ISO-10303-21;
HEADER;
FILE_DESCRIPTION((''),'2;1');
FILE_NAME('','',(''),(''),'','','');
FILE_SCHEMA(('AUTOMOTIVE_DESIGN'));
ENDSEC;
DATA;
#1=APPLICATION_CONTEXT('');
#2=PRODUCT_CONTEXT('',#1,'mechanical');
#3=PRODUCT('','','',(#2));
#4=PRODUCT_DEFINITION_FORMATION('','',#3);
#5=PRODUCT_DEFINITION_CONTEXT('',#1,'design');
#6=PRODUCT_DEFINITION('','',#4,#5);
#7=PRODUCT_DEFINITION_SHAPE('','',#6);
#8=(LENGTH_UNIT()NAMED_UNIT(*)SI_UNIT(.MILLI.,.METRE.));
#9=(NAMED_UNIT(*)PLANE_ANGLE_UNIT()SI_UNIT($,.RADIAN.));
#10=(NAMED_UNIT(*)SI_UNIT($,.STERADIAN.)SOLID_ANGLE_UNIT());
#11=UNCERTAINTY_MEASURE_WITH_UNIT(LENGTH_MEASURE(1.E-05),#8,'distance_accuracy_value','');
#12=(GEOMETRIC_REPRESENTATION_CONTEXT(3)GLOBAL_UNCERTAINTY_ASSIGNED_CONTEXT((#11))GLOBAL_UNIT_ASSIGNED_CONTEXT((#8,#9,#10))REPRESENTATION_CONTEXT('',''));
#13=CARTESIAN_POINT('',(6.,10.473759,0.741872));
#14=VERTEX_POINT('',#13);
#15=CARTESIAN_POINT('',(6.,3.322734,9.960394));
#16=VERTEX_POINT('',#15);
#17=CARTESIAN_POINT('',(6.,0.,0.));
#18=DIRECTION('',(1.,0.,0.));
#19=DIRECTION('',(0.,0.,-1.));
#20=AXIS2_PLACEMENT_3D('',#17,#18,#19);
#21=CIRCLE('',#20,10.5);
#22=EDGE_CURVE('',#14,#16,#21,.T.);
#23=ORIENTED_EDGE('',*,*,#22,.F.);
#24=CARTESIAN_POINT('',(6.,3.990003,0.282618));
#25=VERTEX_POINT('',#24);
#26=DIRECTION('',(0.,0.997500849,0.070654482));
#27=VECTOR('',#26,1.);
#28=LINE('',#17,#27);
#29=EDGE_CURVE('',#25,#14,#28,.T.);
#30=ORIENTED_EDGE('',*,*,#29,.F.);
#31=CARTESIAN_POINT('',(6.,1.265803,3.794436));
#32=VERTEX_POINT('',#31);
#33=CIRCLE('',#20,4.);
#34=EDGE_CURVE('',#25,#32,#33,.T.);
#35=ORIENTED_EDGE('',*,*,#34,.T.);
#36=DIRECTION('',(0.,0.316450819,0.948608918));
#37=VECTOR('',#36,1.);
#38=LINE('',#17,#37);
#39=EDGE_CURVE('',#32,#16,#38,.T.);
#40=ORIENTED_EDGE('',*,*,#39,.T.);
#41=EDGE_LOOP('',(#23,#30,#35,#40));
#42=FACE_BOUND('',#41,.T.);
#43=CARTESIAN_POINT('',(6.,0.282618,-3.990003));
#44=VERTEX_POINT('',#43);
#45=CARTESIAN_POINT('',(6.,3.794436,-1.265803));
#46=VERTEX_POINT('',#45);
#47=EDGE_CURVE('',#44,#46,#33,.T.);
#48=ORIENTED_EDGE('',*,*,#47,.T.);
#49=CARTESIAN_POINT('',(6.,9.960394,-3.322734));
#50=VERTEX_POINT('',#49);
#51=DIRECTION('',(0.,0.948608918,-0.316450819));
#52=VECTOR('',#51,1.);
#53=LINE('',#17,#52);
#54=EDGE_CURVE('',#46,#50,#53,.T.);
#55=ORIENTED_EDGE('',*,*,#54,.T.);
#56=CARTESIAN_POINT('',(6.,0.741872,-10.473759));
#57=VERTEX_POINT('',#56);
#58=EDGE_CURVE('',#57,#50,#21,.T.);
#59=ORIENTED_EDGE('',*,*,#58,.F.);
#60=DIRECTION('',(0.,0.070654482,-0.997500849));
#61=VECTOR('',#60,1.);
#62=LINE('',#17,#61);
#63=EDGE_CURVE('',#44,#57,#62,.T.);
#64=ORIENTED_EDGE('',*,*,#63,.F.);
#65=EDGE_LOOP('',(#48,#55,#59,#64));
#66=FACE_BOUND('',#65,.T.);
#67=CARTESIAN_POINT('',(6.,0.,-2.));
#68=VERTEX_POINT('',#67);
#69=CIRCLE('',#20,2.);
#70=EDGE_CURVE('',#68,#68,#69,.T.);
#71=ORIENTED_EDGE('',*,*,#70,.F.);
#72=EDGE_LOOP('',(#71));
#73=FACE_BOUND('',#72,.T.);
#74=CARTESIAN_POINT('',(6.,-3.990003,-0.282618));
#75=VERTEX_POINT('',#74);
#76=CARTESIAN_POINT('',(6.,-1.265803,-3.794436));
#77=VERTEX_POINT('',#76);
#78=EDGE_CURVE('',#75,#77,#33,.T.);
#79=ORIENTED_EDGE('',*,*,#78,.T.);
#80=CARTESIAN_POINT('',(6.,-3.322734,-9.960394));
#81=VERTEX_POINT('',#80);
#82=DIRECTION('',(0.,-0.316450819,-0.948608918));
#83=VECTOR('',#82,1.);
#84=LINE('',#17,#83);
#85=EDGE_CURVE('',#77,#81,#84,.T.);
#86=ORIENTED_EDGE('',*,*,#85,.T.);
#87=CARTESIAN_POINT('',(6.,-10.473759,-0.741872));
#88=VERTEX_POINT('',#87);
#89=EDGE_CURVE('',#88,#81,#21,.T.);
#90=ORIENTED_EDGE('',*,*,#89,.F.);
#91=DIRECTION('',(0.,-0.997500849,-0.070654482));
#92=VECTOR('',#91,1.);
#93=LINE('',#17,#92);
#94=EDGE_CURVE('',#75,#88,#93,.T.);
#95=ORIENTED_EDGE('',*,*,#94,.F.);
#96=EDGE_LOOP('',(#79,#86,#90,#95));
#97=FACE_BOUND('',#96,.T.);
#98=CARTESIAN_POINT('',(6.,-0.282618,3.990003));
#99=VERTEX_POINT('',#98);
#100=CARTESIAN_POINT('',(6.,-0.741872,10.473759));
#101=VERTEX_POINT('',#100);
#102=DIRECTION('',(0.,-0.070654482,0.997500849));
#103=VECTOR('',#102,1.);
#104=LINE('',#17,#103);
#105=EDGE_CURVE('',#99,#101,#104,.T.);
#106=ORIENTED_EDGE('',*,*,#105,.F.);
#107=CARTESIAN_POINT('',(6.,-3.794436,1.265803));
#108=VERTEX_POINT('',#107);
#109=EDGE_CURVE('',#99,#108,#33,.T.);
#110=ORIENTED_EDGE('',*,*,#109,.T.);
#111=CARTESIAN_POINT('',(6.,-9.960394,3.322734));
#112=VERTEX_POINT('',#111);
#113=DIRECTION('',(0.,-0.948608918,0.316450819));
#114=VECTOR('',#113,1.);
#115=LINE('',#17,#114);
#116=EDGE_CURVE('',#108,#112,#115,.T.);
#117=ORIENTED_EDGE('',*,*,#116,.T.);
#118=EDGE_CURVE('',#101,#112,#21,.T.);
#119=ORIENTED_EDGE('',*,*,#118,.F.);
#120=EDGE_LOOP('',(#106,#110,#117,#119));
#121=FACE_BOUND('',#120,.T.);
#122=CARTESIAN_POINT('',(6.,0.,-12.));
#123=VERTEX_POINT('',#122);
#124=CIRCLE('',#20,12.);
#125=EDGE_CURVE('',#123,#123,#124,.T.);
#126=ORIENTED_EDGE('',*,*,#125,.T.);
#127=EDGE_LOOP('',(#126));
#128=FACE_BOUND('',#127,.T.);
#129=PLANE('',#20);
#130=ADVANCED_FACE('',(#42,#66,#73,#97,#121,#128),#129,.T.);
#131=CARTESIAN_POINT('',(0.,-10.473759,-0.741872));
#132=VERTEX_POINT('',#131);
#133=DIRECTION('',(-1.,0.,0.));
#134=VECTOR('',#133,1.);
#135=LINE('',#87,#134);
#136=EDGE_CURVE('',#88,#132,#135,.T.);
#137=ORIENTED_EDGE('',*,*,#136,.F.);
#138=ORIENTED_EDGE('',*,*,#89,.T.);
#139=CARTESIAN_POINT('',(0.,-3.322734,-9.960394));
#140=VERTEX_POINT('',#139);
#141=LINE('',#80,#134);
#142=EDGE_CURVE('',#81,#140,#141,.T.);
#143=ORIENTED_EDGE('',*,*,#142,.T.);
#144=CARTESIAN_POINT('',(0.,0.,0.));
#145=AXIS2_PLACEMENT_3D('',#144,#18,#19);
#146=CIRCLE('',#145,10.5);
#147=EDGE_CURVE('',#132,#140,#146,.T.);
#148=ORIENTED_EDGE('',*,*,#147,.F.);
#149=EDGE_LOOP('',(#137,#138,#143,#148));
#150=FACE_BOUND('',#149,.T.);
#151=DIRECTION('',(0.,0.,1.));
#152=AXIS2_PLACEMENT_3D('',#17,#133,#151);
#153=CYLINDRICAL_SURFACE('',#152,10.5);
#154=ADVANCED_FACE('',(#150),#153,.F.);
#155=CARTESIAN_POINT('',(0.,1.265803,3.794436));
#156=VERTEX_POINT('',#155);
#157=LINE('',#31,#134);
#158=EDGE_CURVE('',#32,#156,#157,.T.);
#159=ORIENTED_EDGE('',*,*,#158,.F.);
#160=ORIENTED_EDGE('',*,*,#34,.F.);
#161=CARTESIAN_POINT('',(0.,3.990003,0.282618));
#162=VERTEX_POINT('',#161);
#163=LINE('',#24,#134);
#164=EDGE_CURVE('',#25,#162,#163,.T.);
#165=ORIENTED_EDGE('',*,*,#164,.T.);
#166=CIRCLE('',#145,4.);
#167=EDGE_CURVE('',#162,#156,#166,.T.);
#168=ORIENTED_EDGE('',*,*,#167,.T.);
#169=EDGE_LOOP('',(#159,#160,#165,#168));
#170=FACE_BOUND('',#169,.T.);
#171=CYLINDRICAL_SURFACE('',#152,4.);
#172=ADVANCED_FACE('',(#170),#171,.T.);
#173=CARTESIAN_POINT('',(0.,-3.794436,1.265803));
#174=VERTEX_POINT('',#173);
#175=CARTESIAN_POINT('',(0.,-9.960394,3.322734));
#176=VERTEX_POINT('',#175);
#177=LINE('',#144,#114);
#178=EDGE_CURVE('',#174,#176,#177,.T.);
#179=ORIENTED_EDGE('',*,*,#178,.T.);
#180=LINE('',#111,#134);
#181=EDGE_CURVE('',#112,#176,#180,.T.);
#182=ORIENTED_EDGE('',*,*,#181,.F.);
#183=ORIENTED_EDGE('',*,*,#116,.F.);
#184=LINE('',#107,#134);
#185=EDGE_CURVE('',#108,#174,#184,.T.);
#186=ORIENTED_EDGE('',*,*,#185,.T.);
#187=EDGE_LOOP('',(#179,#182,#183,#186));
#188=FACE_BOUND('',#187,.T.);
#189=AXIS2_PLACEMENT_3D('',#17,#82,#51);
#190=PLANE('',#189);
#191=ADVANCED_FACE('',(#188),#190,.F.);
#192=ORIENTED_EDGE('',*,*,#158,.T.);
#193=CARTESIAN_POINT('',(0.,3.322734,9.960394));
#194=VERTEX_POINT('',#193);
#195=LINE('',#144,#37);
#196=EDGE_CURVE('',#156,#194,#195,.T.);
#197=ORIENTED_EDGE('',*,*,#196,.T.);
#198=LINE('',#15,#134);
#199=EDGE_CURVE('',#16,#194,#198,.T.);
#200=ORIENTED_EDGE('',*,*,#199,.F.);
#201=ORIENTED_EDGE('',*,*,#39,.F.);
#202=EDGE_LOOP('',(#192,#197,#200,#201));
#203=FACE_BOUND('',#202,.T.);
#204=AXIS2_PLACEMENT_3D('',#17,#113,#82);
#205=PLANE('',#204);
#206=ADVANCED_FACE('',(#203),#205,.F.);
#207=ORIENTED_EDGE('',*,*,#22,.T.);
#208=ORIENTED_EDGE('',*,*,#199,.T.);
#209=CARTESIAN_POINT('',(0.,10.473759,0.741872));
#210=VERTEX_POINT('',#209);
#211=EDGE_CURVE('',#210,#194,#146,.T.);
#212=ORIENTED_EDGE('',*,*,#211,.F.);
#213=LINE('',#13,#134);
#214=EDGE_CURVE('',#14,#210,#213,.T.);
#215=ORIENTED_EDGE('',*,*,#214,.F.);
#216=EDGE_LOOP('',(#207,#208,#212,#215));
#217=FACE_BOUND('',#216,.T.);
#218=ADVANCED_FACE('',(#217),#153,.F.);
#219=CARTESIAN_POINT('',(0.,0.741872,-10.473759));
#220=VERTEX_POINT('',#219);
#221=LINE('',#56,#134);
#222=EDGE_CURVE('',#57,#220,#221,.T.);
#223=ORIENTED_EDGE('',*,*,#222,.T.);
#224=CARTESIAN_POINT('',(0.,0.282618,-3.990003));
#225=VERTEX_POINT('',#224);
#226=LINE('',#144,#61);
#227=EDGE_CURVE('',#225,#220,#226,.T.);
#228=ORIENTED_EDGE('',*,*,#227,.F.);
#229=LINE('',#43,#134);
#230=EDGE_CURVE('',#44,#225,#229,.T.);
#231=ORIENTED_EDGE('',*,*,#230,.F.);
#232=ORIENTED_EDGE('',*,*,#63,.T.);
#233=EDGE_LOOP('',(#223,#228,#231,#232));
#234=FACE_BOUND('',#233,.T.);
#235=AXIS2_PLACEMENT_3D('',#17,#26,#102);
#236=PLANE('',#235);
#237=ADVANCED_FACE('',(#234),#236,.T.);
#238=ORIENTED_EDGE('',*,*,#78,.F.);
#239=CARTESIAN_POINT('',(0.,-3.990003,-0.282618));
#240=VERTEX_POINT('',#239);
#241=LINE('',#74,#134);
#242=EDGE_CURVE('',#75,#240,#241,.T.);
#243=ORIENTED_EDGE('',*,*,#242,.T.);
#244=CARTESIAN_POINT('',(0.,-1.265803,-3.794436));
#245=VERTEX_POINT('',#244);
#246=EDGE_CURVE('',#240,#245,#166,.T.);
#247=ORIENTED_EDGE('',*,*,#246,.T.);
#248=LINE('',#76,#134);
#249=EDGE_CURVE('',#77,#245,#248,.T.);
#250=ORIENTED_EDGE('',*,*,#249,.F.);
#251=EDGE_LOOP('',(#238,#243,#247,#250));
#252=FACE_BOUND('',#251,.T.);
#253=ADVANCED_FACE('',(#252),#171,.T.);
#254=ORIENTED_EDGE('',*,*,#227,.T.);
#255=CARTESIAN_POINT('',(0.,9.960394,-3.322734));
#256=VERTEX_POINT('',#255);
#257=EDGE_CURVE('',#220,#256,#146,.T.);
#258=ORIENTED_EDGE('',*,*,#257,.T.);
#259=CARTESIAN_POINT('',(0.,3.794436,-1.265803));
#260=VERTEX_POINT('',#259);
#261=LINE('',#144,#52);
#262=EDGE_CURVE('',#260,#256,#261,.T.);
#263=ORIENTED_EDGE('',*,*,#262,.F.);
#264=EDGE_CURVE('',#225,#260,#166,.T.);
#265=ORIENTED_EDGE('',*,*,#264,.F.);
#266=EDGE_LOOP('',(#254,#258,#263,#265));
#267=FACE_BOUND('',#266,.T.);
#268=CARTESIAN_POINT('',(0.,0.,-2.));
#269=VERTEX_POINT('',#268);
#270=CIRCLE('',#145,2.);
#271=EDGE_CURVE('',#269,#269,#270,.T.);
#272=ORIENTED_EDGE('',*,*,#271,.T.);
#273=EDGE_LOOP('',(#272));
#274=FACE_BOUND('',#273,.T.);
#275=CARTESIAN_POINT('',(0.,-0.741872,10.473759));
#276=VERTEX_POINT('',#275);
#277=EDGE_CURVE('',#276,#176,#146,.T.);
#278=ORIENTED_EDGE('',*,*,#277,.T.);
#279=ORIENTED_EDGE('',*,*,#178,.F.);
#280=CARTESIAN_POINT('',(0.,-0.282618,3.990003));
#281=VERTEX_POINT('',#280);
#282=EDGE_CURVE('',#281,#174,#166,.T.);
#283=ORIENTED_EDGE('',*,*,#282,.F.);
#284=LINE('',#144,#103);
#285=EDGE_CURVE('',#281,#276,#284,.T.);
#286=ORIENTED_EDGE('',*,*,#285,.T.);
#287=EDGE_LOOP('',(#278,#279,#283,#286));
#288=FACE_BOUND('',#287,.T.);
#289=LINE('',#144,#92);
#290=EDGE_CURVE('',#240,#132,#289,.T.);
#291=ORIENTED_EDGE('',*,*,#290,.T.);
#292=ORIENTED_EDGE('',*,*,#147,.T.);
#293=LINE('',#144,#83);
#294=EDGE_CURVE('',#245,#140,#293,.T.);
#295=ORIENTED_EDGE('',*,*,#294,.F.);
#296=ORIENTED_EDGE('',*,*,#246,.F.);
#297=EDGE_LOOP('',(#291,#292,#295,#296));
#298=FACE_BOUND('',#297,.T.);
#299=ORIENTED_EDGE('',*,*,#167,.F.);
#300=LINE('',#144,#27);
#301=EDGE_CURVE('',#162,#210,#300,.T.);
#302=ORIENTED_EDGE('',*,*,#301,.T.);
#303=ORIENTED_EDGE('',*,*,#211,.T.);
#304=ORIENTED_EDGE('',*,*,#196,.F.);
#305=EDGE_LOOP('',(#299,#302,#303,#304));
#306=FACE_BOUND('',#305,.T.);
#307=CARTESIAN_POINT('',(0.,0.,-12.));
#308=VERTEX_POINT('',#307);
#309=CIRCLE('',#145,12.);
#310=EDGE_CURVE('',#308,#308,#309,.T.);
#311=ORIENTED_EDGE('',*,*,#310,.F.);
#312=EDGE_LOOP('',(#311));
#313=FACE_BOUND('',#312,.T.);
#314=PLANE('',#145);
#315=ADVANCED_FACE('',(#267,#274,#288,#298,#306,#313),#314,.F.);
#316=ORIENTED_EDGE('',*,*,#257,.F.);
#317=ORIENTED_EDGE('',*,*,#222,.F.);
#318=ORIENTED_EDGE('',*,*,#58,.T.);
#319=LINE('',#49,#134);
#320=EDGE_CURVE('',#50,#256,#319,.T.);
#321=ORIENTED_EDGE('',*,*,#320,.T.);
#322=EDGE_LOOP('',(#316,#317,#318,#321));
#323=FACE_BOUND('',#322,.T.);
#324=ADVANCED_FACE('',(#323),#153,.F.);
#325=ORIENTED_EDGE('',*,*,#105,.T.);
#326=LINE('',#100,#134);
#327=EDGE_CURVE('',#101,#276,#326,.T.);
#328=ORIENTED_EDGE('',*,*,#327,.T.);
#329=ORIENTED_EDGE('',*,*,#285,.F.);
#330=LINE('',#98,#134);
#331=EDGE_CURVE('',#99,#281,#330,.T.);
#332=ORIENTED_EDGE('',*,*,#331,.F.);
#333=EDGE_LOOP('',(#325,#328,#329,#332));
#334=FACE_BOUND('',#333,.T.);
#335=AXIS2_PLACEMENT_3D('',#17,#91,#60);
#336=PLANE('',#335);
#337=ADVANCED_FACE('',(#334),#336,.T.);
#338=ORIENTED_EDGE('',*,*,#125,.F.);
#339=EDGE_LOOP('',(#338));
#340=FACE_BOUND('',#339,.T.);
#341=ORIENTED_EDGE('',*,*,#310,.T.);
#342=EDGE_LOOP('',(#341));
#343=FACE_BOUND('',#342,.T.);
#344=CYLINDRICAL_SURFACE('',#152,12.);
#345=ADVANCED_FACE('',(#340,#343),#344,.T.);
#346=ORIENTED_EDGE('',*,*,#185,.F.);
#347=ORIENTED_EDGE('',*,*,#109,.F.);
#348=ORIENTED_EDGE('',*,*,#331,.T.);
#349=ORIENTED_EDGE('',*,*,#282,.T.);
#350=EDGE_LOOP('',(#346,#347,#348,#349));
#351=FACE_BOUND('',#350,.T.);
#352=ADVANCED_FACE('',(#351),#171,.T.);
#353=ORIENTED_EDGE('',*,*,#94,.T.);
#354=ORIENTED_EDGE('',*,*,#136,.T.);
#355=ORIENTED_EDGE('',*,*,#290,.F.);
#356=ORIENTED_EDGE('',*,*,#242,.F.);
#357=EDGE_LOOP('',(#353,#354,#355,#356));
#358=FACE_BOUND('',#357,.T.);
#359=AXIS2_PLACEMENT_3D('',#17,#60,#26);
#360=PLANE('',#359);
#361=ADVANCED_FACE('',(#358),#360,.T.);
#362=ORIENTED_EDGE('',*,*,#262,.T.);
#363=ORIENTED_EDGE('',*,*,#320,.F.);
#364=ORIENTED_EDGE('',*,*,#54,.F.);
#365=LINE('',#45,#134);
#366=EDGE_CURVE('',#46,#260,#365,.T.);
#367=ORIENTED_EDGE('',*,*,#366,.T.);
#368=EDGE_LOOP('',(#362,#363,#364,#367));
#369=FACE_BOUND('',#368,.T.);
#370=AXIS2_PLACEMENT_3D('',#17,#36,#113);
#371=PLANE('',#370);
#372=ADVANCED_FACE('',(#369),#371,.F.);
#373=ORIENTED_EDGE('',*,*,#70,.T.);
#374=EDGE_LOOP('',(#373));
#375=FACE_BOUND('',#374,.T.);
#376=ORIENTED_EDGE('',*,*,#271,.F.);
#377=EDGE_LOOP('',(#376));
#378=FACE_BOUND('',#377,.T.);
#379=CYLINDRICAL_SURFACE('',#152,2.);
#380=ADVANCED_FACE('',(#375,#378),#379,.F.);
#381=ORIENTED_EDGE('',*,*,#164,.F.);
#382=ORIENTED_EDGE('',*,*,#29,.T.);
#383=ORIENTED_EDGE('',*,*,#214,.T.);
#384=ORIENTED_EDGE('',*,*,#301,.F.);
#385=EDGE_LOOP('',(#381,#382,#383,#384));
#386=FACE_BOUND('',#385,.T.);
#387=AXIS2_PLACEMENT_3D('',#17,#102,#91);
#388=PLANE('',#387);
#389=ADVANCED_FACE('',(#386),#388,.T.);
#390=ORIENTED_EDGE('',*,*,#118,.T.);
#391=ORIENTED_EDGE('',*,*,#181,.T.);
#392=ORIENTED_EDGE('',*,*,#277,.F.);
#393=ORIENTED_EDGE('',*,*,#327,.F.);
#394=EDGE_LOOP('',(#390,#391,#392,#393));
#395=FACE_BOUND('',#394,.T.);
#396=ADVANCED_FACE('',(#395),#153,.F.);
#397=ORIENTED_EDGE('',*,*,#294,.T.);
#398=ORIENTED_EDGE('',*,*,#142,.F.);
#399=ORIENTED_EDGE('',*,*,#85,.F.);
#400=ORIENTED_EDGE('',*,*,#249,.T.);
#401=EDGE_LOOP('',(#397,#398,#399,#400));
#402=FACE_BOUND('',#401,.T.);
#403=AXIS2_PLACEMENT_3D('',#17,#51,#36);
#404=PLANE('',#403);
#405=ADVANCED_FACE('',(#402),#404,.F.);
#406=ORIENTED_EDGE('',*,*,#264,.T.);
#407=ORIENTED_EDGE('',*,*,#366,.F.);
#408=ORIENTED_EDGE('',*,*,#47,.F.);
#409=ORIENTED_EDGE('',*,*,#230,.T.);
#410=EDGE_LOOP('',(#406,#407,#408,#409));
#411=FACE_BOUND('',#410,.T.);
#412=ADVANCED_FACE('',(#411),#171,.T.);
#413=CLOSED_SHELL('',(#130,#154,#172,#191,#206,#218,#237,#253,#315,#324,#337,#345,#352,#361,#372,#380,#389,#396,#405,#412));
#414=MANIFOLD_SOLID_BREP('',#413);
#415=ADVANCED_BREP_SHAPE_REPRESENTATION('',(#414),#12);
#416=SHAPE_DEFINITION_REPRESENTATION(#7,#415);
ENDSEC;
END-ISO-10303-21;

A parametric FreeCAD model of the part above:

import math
import FreeCAD as App
import Part
import Sketcher
from FreeCAD import Vector
Q = App.Units.Quantity

doc = App.newDocument("Part")
body = doc.addObject("PartDesign::Body", "Body")

# Sketch on YZ plane
sketch1 = body.newObject("Sketcher::SketchObject", "Sketch")
sketch1.AttachmentSupport = (doc.getObject("YZ_Plane"), [""])
sketch1.MapMode = "FlatFace"
sketch1.addGeometry([
    Part.Circle(Vector(0, 0, 0), Vector(0, 0, 1), 12),  # 0
    Part.ArcOfCircle(Part.Circle(Vector(0, 0, 0), Vector(0, 0, 1), 10.5), math.radians(-86), math.radians(-18)),  # 1
    Part.LineSegment(Vector(0.7, -10.5, 0), Vector(0.3, -4, 0)),  # 2
    Part.ArcOfCircle(Part.Circle(Vector(0, 0, 0), Vector(0, 0, 1), 4), math.radians(-86), math.radians(-18)),  # 3
    Part.LineSegment(Vector(3.8, -1.3, 0), Vector(10, -3.3, 0)),  # 4
    Part.ArcOfCircle(Part.Circle(Vector(0, 0, 0), Vector(0, 0, 1), 10.5), math.radians(4), math.radians(72)),  # 5
    Part.LineSegment(Vector(10.5, 0.7, 0), Vector(4, 0.3, 0)),  # 6
    Part.ArcOfCircle(Part.Circle(Vector(0, 0, 0), Vector(0, 0, 1), 4), math.radians(4), math.radians(72)),  # 7
    Part.LineSegment(Vector(1.3, 3.8, 0), Vector(3.3, 10, 0)),  # 8
    Part.ArcOfCircle(Part.Circle(Vector(0, 0, 0), Vector(0, 0, 1), 10.5), math.radians(94), math.radians(162)),  # 9
    Part.LineSegment(Vector(-0.7, 10.5, 0), Vector(-0.3, 4, 0)),  # 10
    Part.ArcOfCircle(Part.Circle(Vector(0, 0, 0), Vector(0, 0, 1), 4), math.radians(94), math.radians(162)),  # 11
    Part.LineSegment(Vector(-3.8, 1.3, 0), Vector(-10, 3.3, 0)),  # 12
    Part.ArcOfCircle(Part.Circle(Vector(0, 0, 0), Vector(0, 0, 1), 10.5), math.radians(-176), math.radians(-108)),  # 13
    Part.LineSegment(Vector(-10.5, -0.7, 0), Vector(-4, -0.3, 0)),  # 14
    Part.ArcOfCircle(Part.Circle(Vector(0, 0, 0), Vector(0, 0, 1), 4), math.radians(-176), math.radians(-108)),  # 15
    Part.LineSegment(Vector(-1.3, -3.8, 0), Vector(-3.3, -10, 0)),  # 16
    Part.Circle(Vector(0, 0, 0), Vector(0, 0, 1), 2),  # 17
], False)
sketch1.addConstraint([
    Sketcher.Constraint("Coincident", 1, 1, 2, 1),
    Sketcher.Constraint("Coincident", 2, 2, 3, 1),
    Sketcher.Constraint("Coincident", 3, 2, 4, 1),
    Sketcher.Constraint("Coincident", 4, 2, 1, 2),
    Sketcher.Constraint("Coincident", 5, 1, 6, 1),
    Sketcher.Constraint("Coincident", 6, 2, 7, 1),
    Sketcher.Constraint("Coincident", 7, 2, 8, 1),
    Sketcher.Constraint("Coincident", 8, 2, 5, 2),
    Sketcher.Constraint("Coincident", 9, 1, 10, 1),
    Sketcher.Constraint("Coincident", 10, 2, 11, 1),
    Sketcher.Constraint("Coincident", 11, 2, 12, 1),
    Sketcher.Constraint("Coincident", 12, 2, 9, 2),
    Sketcher.Constraint("Coincident", 13, 1, 14, 1),
    Sketcher.Constraint("Coincident", 14, 2, 15, 1),
    Sketcher.Constraint("Coincident", 15, 2, 16, 1),
    Sketcher.Constraint("Coincident", 16, 2, 13, 2),
    Sketcher.Constraint("Coincident", 0, 3, -1, 1),
    Sketcher.Constraint("Coincident", 1, 3, -1, 1),
    Sketcher.Constraint("Coincident", 3, 3, -1, 1),
    Sketcher.Constraint("Coincident", 5, 3, -1, 1),
    Sketcher.Constraint("Coincident", 7, 3, -1, 1),
    Sketcher.Constraint("Coincident", 9, 3, -1, 1),
    Sketcher.Constraint("Coincident", 11, 3, -1, 1),
    Sketcher.Constraint("Coincident", 13, 3, -1, 1),
    Sketcher.Constraint("Coincident", 15, 3, -1, 1),
    Sketcher.Constraint("Coincident", 17, 3, -1, 1),
    Sketcher.Constraint("Equal", 1, 5),
    Sketcher.Constraint("Equal", 3, 7),
    Sketcher.Constraint("Equal", 5, 9),
    Sketcher.Constraint("Equal", 7, 11),
    Sketcher.Constraint("Equal", 9, 13),
    Sketcher.Constraint("Equal", 11, 15),
    Sketcher.Constraint("Perpendicular", 2, 6),
    Sketcher.Constraint("Perpendicular", 4, 8),
    Sketcher.Constraint("Perpendicular", 6, 10),
    Sketcher.Constraint("Perpendicular", 8, 12),
    Sketcher.Constraint("Perpendicular", 10, 14),
    Sketcher.Constraint("Perpendicular", 12, 16),
    Sketcher.Constraint("Diameter", 0, Q("24 mm")),
    Sketcher.Constraint("Diameter", 17, Q("4 mm")),
    Sketcher.Constraint("Radius", 3, Q("4 mm")),
    Sketcher.Constraint("Radius", 1, Q("10.5 mm")),
    Sketcher.Constraint("DistanceY", 1, 1, -1, 1, Q("10.473759 mm")),
    Sketcher.Constraint("DistanceX", -1, 1, 5, 1, Q("10.473759 mm")),
    Sketcher.Constraint("DistanceY", -1, 1, 9, 1, Q("10.473759 mm")),
    Sketcher.Constraint("DistanceX", 13, 1, -1, 1, Q("10.473759 mm")),
    Sketcher.Constraint("DistanceY", 4, 2, 3, 2, Q("2.05693 mm")),
    Sketcher.Constraint("DistanceY", 2, 2, 4, 2, Q("0.66727 mm")),
    Sketcher.Constraint("DistanceY", 3, 2, 6, 2, Q("1.548421 mm")),
    Sketcher.Constraint("DistanceX", 8, 2, 6, 2, Q("0.66727 mm")),
    Sketcher.Constraint("DistanceY", 12, 2, 10, 2, Q("0.66727 mm")),
    Sketcher.Constraint("DistanceX", 15, 2, 2, 2, Q("1.548421 mm")),
])
pad1 = body.newObject("PartDesign::Pad", "Pad")
pad1.Profile = sketch1
pad1.Length = 6

doc.recompute()
